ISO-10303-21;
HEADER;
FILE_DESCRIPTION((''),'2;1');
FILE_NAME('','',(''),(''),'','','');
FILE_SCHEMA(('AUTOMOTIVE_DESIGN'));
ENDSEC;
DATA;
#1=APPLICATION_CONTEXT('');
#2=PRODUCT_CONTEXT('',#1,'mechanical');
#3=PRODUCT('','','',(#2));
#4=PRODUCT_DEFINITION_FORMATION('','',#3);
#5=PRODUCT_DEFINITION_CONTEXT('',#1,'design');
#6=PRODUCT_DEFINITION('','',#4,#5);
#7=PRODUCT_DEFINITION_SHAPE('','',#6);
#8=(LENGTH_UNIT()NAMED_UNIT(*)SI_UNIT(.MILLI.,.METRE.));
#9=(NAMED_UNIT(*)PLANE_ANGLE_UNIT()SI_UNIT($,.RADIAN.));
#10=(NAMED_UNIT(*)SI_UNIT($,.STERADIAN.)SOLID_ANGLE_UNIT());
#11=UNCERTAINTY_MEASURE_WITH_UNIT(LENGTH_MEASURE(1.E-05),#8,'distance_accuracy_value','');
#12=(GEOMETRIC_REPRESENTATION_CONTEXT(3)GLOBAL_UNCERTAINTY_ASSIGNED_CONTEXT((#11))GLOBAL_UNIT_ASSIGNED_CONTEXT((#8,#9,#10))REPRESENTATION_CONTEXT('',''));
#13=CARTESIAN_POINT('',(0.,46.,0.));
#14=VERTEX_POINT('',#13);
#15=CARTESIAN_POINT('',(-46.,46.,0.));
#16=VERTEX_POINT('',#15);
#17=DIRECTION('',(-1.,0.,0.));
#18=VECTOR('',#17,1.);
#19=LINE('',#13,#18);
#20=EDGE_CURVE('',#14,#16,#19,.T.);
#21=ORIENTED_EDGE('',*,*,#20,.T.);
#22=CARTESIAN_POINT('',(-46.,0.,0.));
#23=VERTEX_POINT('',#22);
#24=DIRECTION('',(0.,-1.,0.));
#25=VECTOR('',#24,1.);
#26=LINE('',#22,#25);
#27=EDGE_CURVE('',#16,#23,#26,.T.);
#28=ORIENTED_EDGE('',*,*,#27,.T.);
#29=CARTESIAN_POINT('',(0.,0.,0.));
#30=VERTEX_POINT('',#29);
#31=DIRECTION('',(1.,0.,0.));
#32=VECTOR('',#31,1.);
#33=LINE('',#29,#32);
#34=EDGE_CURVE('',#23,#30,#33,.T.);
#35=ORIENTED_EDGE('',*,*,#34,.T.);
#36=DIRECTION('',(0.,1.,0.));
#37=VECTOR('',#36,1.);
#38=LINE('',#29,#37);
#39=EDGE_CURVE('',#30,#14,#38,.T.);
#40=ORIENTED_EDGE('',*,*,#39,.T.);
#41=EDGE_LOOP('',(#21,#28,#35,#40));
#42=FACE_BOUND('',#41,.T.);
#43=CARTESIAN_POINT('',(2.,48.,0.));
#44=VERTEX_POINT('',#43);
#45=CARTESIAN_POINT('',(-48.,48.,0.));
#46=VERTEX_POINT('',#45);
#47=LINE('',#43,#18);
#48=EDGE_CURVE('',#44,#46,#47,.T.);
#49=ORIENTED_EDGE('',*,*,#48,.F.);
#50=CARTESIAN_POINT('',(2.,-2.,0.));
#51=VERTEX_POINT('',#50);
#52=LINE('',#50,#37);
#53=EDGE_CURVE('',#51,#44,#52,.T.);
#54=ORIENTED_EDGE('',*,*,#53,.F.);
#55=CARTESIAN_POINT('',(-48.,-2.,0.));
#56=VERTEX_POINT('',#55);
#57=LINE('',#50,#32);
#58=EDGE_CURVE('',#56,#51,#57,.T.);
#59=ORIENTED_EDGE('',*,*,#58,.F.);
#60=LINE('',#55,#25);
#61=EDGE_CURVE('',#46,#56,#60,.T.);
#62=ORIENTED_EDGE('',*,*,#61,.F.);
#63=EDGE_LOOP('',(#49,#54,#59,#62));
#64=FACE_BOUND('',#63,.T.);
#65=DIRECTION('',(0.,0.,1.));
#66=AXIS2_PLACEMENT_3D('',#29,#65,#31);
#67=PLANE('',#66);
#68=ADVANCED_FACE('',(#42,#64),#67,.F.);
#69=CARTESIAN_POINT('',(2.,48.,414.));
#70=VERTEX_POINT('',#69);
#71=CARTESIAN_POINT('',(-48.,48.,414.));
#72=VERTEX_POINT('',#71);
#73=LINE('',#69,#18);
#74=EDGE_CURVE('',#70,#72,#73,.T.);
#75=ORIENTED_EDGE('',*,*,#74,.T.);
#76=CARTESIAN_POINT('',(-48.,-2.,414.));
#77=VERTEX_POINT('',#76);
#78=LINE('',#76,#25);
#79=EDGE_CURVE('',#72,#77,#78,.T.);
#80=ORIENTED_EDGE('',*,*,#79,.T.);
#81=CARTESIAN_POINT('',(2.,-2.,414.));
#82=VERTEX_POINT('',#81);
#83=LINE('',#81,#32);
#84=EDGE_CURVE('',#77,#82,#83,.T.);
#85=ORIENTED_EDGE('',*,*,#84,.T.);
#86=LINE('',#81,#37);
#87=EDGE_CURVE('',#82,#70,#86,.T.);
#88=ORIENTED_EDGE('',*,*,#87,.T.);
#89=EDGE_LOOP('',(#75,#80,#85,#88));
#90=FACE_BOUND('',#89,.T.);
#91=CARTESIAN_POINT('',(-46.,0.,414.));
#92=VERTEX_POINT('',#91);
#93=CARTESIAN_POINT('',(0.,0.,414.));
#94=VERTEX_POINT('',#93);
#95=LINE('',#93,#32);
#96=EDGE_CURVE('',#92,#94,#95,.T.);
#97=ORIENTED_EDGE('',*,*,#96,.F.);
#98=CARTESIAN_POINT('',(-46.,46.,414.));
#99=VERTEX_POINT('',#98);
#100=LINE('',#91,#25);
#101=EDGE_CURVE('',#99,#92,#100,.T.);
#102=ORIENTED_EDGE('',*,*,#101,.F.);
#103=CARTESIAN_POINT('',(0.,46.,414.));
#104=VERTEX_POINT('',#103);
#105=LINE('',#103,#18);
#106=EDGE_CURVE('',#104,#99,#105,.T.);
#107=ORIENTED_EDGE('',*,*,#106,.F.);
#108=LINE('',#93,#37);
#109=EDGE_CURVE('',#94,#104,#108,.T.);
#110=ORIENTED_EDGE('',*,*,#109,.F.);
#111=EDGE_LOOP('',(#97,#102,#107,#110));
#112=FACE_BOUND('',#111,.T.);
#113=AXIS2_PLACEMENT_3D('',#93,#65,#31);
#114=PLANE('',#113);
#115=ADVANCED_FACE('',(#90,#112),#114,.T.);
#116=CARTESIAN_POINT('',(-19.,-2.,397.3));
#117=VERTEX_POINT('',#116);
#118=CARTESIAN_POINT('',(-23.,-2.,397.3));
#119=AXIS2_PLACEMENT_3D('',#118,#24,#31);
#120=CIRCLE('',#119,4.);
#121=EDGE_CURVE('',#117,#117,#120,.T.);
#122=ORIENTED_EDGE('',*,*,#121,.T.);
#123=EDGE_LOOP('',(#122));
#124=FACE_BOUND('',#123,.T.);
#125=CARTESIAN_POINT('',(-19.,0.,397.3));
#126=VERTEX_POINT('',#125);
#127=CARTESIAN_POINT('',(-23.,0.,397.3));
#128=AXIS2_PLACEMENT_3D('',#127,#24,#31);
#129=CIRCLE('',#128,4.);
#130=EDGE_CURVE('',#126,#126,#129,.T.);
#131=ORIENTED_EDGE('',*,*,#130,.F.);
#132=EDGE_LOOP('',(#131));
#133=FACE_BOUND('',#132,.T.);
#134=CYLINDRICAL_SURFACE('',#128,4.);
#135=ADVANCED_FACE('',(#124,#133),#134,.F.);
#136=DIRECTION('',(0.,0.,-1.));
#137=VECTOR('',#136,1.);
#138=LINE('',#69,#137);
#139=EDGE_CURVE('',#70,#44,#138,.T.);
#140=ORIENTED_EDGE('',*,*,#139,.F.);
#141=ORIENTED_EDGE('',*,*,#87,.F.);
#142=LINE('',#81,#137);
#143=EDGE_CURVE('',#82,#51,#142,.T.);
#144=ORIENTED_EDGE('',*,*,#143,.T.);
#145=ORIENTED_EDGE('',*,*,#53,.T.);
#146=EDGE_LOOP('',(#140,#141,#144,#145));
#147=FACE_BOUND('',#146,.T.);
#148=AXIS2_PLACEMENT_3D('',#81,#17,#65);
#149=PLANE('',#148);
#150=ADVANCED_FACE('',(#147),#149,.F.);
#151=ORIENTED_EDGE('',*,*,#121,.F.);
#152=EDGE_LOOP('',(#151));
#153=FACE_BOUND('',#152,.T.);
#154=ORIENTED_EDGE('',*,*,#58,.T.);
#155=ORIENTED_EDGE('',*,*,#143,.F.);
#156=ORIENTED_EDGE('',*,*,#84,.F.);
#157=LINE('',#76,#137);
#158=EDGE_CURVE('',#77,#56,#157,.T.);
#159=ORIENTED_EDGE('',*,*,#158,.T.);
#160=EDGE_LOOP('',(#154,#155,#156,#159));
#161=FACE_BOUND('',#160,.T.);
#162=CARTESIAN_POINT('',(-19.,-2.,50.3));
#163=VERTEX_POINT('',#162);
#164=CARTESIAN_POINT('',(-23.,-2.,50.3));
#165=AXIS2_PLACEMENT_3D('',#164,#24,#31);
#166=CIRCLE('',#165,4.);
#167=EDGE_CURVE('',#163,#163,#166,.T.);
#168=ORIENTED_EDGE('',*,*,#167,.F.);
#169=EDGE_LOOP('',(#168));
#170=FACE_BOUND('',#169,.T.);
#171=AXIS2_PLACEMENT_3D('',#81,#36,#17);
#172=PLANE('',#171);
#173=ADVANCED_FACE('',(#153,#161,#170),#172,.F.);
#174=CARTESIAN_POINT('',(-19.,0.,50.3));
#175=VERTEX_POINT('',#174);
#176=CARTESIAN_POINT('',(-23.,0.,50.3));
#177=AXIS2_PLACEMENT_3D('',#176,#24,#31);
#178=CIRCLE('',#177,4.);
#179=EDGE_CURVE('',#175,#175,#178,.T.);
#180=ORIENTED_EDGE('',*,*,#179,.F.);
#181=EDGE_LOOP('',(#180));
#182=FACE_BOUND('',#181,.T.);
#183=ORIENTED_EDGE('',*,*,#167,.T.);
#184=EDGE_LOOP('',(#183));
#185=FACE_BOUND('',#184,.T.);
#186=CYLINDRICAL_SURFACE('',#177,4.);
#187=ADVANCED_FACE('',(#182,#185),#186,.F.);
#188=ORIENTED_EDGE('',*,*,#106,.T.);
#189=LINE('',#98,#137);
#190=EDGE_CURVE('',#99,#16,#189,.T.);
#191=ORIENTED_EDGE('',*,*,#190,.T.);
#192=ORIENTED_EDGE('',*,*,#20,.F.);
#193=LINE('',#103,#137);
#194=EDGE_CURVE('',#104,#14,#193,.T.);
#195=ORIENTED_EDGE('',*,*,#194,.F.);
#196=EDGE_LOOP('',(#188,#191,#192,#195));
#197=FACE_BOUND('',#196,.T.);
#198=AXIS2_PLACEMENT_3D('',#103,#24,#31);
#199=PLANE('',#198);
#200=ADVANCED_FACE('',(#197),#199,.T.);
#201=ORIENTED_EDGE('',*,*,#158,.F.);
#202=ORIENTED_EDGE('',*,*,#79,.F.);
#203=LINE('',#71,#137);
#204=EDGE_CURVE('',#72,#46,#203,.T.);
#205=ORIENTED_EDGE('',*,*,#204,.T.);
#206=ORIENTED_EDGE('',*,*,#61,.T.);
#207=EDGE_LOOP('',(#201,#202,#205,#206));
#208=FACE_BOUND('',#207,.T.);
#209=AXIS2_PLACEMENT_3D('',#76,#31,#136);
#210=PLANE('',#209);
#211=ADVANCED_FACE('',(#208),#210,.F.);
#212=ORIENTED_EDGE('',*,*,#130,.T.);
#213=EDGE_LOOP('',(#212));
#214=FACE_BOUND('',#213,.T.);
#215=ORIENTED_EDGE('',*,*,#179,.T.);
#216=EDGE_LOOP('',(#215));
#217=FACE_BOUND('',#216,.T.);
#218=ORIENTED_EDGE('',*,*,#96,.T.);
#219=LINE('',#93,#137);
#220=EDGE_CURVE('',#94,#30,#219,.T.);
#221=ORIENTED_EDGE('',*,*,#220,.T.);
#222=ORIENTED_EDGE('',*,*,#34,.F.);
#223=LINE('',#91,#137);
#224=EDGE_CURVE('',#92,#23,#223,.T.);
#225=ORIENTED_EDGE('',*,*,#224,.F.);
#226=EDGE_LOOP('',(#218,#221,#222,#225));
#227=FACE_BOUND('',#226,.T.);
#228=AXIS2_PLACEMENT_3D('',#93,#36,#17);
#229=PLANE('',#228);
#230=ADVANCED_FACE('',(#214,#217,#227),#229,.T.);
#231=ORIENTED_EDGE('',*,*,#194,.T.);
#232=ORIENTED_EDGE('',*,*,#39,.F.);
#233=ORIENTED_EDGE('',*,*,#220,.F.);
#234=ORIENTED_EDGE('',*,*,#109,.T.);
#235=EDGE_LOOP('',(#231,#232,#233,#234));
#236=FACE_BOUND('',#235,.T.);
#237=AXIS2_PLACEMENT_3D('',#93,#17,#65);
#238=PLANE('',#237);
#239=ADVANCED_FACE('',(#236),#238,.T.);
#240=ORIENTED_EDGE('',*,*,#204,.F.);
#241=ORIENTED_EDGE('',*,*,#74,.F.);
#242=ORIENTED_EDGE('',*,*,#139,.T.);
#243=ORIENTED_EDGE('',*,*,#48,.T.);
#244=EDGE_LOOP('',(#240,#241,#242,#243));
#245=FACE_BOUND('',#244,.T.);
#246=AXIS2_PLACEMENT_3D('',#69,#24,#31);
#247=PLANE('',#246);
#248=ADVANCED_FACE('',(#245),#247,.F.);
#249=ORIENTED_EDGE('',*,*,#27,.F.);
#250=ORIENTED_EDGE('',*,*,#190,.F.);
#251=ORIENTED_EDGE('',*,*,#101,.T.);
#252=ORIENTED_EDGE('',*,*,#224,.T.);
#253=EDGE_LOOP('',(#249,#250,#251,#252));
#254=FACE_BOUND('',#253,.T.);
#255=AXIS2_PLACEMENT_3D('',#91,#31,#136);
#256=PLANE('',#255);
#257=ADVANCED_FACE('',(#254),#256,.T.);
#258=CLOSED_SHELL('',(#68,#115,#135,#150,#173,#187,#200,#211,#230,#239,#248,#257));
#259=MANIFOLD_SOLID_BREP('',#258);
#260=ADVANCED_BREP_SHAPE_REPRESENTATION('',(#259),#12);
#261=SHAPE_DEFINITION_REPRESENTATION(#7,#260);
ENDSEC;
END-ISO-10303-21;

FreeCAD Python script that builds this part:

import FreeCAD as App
import Part
import Sketcher
from FreeCAD import Vector
Q = App.Units.Quantity

doc = App.newDocument("Part")
params = doc.addObject("Spreadsheet::Sheet", "Params")
for row, (alias, value) in enumerate([
    ("sketch1_width", "50 mm"),
    ("sketch1_width2", "46 mm"),
    ("pad1_length", "414 mm"),
    ("sketch2_diameter", "8 mm"),
    ("pocket1_length", "2 mm"),
], start=1):
    params.set(f"A{row}", alias)
    params.set(f"B{row}", "=" + value)
    params.setAlias(f"B{row}", alias)

body = doc.addObject("PartDesign::Body", "Body")

# Sketch on XY plane
sketch1 = body.newObject("Sketcher::SketchObject", "Sketch")
sketch1.AttachmentSupport = (doc.getObject("XY_Plane"), [""])
sketch1.MapMode = "FlatFace"
sketch1.addGeometry(Part.LineSegment(Vector(-48, 48, 0), Vector(-48, -2, 0)), False)
sketch1.addGeometry(Part.LineSegment(Vector(-48, -2, 0), Vector(2, -2, 0)), False)
sketch1.addGeometry(Part.LineSegment(Vector(2, -2, 0), Vector(2, 48, 0)), False)
sketch1.addGeometry(Part.LineSegment(Vector(2, 48, 0), Vector(-48, 48, 0)), False)
sketch1.addGeometry(Part.LineSegment(Vector(0, 0, 0), Vector(-46, 0, 0)), False)
sketch1.addGeometry(Part.LineSegment(Vector(-46, 0, 0), Vector(-46, 46, 0)), False)
sketch1.addGeometry(Part.LineSegment(Vector(-46, 46, 0), Vector(0, 46, 0)), False)
sketch1.addGeometry(Part.LineSegment(Vector(0, 46, 0), Vector(0, 0, 0)), False)
sketch1.addConstraint(Sketcher.Constraint("Coincident", 0, 2, 1, 1))
sketch1.addConstraint(Sketcher.Constraint("Coincident", 1, 2, 2, 1))
sketch1.addConstraint(Sketcher.Constraint("Coincident", 2, 2, 3, 1))
sketch1.addConstraint(Sketcher.Constraint("Coincident", 3, 2, 0, 1))
sketch1.addConstraint(Sketcher.Constraint("Coincident", 4, 2, 5, 1))
sketch1.addConstraint(Sketcher.Constraint("Coincident", 5, 2, 6, 1))
sketch1.addConstraint(Sketcher.Constraint("Coincident", 6, 2, 7, 1))
sketch1.addConstraint(Sketcher.Constraint("Coincident", 7, 2, 4, 1))
sketch1.addConstraint(Sketcher.Constraint("Vertical", 0))
sketch1.addConstraint(Sketcher.Constraint("Horizontal", 1))
sketch1.addConstraint(Sketcher.Constraint("Vertical", 2))
sketch1.addConstraint(Sketcher.Constraint("Horizontal", 3))
sketch1.addConstraint(Sketcher.Constraint("Horizontal", 4))
sketch1.addConstraint(Sketcher.Constraint("Vertical", 5))
sketch1.addConstraint(Sketcher.Constraint("Horizontal", 6))
sketch1.addConstraint(Sketcher.Constraint("Vertical", 7))
sketch1.addConstraint(Sketcher.Constraint("Coincident", 7, 2, -1, 1))
sketch1.addConstraint(Sketcher.Constraint("Equal", 3, 0))
sketch1.addConstraint(Sketcher.Constraint("Equal", 6, 5))
sketch1.addConstraint(Sketcher.Constraint("DistanceX", 1, 1, 1, 2, Q("50 mm")))
sketch1.addConstraint(Sketcher.Constraint("DistanceX", 4, 2, 4, 1, Q("46 mm")))
sketch1.addConstraint(Sketcher.Constraint("DistanceX", 0, 2, -1, 1, Q("48 mm")))
sketch1.addConstraint(Sketcher.Constraint("DistanceY", 0, 2, -1, 1, Q("2 mm")))
sketch1.setExpression("Constraints[19]", "Params.sketch1_width")
sketch1.setExpression("Constraints[20]", "Params.sketch1_width2")
pad1 = body.newObject("PartDesign::Pad", "Pad")
pad1.Profile = sketch1
pad1.setExpression("Length", "Params.pad1_length")

# Sketch on XZ plane
sketch2 = body.newObject("Sketcher::SketchObject", "Sketch001")
sketch2.AttachmentSupport = (doc.getObject("XZ_Plane"), [""])
sketch2.MapMode = "FlatFace"
sketch2.AttachmentOffset = App.Placement(Vector(0, 0, 2), App.Rotation())
sketch2.addGeometry(Part.Circle(Vector(-23, 50.3, 0), Vector(0, 0, 1), 4), False)
sketch2.addGeometry(Part.Circle(Vector(-23, 397.3, 0), Vector(0, 0, 1), 4), False)
sketch2.addConstraint(Sketcher.Constraint("Equal", 0, 1))
sketch2.addConstraint(Sketcher.Constraint("Vertical", 0, 3, 1, 3))
sketch2.addConstraint(Sketcher.Constraint("Diameter", 0, Q("8 mm")))
sketch2.addConstraint(Sketcher.Constraint("DistanceX", 0, 3, -1, 1, Q("23 mm")))
sketch2.addConstraint(Sketcher.Constraint("DistanceY", 0, 3, 1, 3, Q("347 mm")))
sketch2.addConstraint(Sketcher.Constraint("DistanceY", -1, 1, 0, 3, Q("50.3 mm")))
sketch2.setExpression("Constraints[2]", "Params.sketch2_diameter")
pocket1 = body.newObject("PartDesign::Pocket", "Pocket")
pocket1.Profile = sketch2
pocket1.setExpression("Length", "Params.pocket1_length")

doc.recompute()
